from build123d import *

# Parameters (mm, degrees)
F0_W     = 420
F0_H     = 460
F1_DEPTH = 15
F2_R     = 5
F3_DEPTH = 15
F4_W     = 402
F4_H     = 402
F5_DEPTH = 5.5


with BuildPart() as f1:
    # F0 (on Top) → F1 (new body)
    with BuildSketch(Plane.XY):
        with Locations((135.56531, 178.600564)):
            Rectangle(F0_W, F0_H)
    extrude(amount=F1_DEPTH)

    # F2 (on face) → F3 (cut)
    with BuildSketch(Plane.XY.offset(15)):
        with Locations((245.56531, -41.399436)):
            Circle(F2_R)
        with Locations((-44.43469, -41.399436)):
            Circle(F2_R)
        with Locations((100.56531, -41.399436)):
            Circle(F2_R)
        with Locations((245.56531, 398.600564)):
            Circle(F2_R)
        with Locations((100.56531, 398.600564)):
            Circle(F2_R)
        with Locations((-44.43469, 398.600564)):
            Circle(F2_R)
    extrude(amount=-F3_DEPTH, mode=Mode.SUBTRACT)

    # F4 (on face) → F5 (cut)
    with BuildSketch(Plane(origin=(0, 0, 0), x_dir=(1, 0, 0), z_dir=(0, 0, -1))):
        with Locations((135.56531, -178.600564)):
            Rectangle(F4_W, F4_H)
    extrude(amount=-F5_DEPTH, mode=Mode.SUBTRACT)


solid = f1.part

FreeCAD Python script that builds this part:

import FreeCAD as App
import Part
import Sketcher

V = App.Vector
Q = App.Units.Quantity

doc = App.newDocument("Part")
body = doc.addObject("PartDesign::Body", "Body")

# Sketch on XY plane
sketch1 = body.newObject("Sketcher::SketchObject", "Sketch")
sketch1.AttachmentSupport = (doc.getObject("XY_Plane"), [""])
sketch1.MapMode = "FlatFace"
sketch1.addGeometry(Part.LineSegment(V(-74.43469, 408.600564, 0), V(-74.43469, -51.399436, 0)), False)
sketch1.addGeometry(Part.LineSegment(V(-74.43469, -51.399436, 0), V(345.56531, -51.399436, 0)), False)
sketch1.addGeometry(Part.LineSegment(V(345.56531, -51.399436, 0), V(345.56531, 408.600564, 0)), False)
sketch1.addGeometry(Part.LineSegment(V(345.56531, 408.600564, 0), V(-74.43469, 408.600564, 0)), False)
sketch1.addConstraint(Sketcher.Constraint("Coincident", 0, 2, 1, 1))
sketch1.addConstraint(Sketcher.Constraint("Coincident", 1, 2, 2, 1))
sketch1.addConstraint(Sketcher.Constraint("Coincident", 2, 2, 3, 1))
sketch1.addConstraint(Sketcher.Constraint("Coincident", 3, 2, 0, 1))
sketch1.addConstraint(Sketcher.Constraint("Vertical", 0))
sketch1.addConstraint(Sketcher.Constraint("Horizontal", 1))
sketch1.addConstraint(Sketcher.Constraint("Vertical", 2))
sketch1.addConstraint(Sketcher.Constraint("Horizontal", 3))
sketch1.addConstraint(Sketcher.Constraint("DistanceX", 1, 1, 1, 2, Q("420 mm")))
sketch1.addConstraint(Sketcher.Constraint("DistanceY", 0, 2, 0, 1, Q("460 mm")))
sketch1.addConstraint(Sketcher.Constraint("DistanceX", 0, 2, -1, 1, Q("74.43469 mm")))
sketch1.addConstraint(Sketcher.Constraint("DistanceY", 0, 2, -1, 1, Q("51.399436 mm")))
pad1 = body.newObject("PartDesign::Pad", "Pad")
pad1.Profile = sketch1
pad1.Length = 15

# Sketch on XY plane
sketch2 = body.newObject("Sketcher::SketchObject", "Sketch001")
sketch2.AttachmentSupport = (doc.getObject("XY_Plane"), [""])
sketch2.MapMode = "FlatFace"
sketch2.AttachmentOffset = App.Placement(V(0, 0, 15), App.Rotation())
sketch2.addGeometry(Part.Circle(V(245.56531, -41.399436, 0), V(0, 0, 1), 5), False)
sketch2.addGeometry(Part.Circle(V(-44.43469, -41.399436, 0), V(0, 0, 1), 5), False)
sketch2.addGeometry(Part.Circle(V(100.56531, -41.399436, 0), V(0, 0, 1), 5), False)
sketch2.addGeometry(Part.Circle(V(245.56531, 398.600564, 0), V(0, 0, 1), 5), False)
sketch2.addGeometry(Part.Circle(V(100.56531, 398.600564, 0), V(0, 0, 1), 5), False)
sketch2.addGeometry(Part.Circle(V(-44.43469, 398.600564, 0), V(0, 0, 1), 5), False)
sketch2.addConstraint(Sketcher.Constraint("Equal", 0, 1))
sketch2.addConstraint(Sketcher.Constraint("Equal", 1, 2))
sketch2.addConstraint(Sketcher.Constraint("Equal", 2, 3))
sketch2.addConstraint(Sketcher.Constraint("Equal", 3, 4))
sketch2.addConstraint(Sketcher.Constraint("Equal", 4, 5))
sketch2.addConstraint(Sketcher.Constraint("Horizontal", 0, 3, 1, 3))
sketch2.addConstraint(Sketcher.Constraint("Horizontal", 1, 3, 2, 3))
sketch2.addConstraint(Sketcher.Constraint("Horizontal", 3, 3, 4, 3))
sketch2.addConstraint(Sketcher.Constraint("Horizontal", 4, 3, 5, 3))
sketch2.addConstraint(Sketcher.Constraint("Vertical", 0, 3, 3, 3))
sketch2.addConstraint(Sketcher.Constraint("Vertical", 2, 3, 4, 3))
sketch2.addConstraint(Sketcher.Constraint("Vertical", 1, 3, 5, 3))
sketch2.addConstraint(Sketcher.Constraint("Diameter", 0, Q("10 mm")))
sketch2.addConstraint(Sketcher.Constraint("DistanceX", 1, 3, 0, 3, Q("290 mm")))
sketch2.addConstraint(Sketcher.Constraint("DistanceX", 2, 3, 0, 3, Q("145 mm")))
sketch2.addConstraint(Sketcher.Constraint("DistanceY", 0, 3, 3, 3, Q("440 mm")))
sketch2.addConstraint(Sketcher.Constraint("DistanceX", -1, 1, 0, 3, Q("245.56531 mm")))
sketch2.addConstraint(Sketcher.Constraint("DistanceY", 0, 3, -1, 1, Q("41.399436 mm")))
pocket1 = body.newObject("PartDesign::Pocket", "Pocket")
pocket1.Profile = sketch2
pocket1.Length = 15

# Sketch on XY plane
sketch3 = body.newObject("Sketcher::SketchObject", "Sketch002")
sketch3.AttachmentSupport = (doc.getObject("XY_Plane"), [""])
sketch3.MapMode = "FlatFace"
sketch3.addGeometry(Part.LineSegment(V(-65.43469, -22.399436, 0), V(-65.43469, 379.600564, 0)), False)
sketch3.addGeometry(Part.LineSegment(V(-65.43469, 379.600564, 0), V(336.56531, 379.600564, 0)), False)
sketch3.addGeometry(Part.LineSegment(V(336.56531, 379.600564, 0), V(336.56531, -22.399436, 0)), False)
sketch3.addGeometry(Part.LineSegment(V(336.56531, -22.399436, 0), V(-65.43469, -22.399436, 0)), False)
sketch3.addConstraint(Sketcher.Constraint("Coincident", 0, 2, 1, 1))
sketch3.addConstraint(Sketcher.Constraint("Coincident", 1, 2, 2, 1))
sketch3.addConstraint(Sketcher.Constraint("Coincident", 2, 2, 3, 1))
sketch3.addConstraint(Sketcher.Constraint("Coincident", 3, 2, 0, 1))
sketch3.addConstraint(Sketcher.Constraint("Vertical", 0))
sketch3.addConstraint(Sketcher.Constraint("Horizontal", 1))
sketch3.addConstraint(Sketcher.Constraint("Vertical", 2))
sketch3.addConstraint(Sketcher.Constraint("Horizontal", 3))
sketch3.addConstraint(Sketcher.Constraint("Equal", 3, 0))
sketch3.addConstraint(Sketcher.Constraint("DistanceX", 1, 1, 1, 2, Q("402 mm")))
sketch3.addConstraint(Sketcher.Constraint("DistanceX", 0, 2, -1, 1, Q("65.43469 mm")))
sketch3.addConstraint(Sketcher.Constraint("DistanceY", -1, 1, 0, 2, Q("379.600564 mm")))
pocket2 = body.newObject("PartDesign::Pocket", "Pocket001")
pocket2.Profile = sketch3
pocket2.Length = 5.5
pocket2.Reversed = True

doc.recompute()
